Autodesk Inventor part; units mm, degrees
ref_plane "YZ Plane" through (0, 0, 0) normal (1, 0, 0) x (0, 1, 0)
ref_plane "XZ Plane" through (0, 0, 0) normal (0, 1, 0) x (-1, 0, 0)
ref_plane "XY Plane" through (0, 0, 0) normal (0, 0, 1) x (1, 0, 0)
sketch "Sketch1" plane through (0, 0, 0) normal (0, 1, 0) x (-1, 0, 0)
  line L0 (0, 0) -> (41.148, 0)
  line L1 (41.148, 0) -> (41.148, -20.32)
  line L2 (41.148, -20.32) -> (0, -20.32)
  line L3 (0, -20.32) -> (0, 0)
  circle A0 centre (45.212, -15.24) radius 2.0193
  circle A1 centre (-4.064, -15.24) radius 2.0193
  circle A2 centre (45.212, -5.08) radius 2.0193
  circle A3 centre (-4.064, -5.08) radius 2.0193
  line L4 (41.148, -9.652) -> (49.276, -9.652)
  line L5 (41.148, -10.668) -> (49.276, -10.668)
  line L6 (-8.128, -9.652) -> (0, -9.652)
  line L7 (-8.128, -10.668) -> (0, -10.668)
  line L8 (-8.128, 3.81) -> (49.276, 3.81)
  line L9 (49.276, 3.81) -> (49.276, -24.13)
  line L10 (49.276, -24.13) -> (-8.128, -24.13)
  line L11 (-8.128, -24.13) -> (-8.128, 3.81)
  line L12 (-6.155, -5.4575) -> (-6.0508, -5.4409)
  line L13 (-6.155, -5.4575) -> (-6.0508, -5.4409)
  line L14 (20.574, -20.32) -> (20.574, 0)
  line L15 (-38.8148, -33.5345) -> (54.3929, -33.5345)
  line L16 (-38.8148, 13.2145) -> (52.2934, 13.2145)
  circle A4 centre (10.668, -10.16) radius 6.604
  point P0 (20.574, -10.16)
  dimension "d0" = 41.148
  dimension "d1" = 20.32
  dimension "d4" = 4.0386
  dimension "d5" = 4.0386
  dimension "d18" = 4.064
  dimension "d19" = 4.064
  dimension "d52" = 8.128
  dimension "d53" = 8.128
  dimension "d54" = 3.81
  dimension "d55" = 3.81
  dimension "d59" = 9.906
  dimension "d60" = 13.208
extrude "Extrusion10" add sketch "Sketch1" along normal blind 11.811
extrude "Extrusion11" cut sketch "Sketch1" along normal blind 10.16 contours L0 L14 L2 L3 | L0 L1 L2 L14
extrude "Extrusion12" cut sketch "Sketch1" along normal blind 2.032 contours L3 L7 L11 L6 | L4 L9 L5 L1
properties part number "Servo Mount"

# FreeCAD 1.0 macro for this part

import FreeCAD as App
import Part
import Sketcher
from FreeCAD import Vector
Q = App.Units.Quantity

doc = App.newDocument("Part")
body = doc.addObject("PartDesign::Body", "Body")

sketch1 = body.newObject("Sketcher::SketchObject", "Sketch")
sketch1.AttachmentSupport = (doc.getObject("XZ_Plane"), [""])
sketch1.MapMode = "FlatFace"
sketch1.addGeometry([
    Part.LineSegment(Vector(8.1, 3.8, 0), Vector(8.1, -24.1, 0)),
    Part.LineSegment(Vector(8.1, -24.1, 0), Vector(-49.3, -24.1, 0)),
    Part.LineSegment(Vector(-49.3, -24.1, 0), Vector(-49.3, 3.8, 0)),
    Part.LineSegment(Vector(-49.3, 3.8, 0), Vector(8.1, 3.8, 0)),
    Part.Circle(Vector(4.1, -5.1, 0), Vector(0, 0, 1), 2),
    Part.Circle(Vector(-45.2, -5.1, 0), Vector(0, 0, 1), 2),
    Part.Circle(Vector(-10.7, -10.2, 0), Vector(0, 0, 1), 6.6),
    Part.Circle(Vector(-45.2, -15.2, 0), Vector(0, 0, 1), 2),
    Part.Circle(Vector(4.1, -15.2, 0), Vector(0, 0, 1), 2),
], False)
sketch1.addConstraint([
    Sketcher.Constraint("Coincident", 0, 2, 1, 1),
    Sketcher.Constraint("Coincident", 1, 2, 2, 1),
    Sketcher.Constraint("Coincident", 2, 2, 3, 1),
    Sketcher.Constraint("Coincident", 3, 2, 0, 1),
    Sketcher.Constraint("Vertical", 0),
    Sketcher.Constraint("Horizontal", 1),
    Sketcher.Constraint("Vertical", 2),
    Sketcher.Constraint("Horizontal", 3),
    Sketcher.Constraint("Equal", 4, 5),
    Sketcher.Constraint("Equal", 5, 7),
    Sketcher.Constraint("Equal", 7, 8),
    Sketcher.Constraint("Horizontal", 4, 3, 5, 3),
    Sketcher.Constraint("Horizontal", 7, 3, 8, 3),
    Sketcher.Constraint("Vertical", 5, 3, 7, 3),
    Sketcher.Constraint("Vertical", 4, 3, 8, 3),
    Sketcher.Constraint("Diameter", 6, Q("0.52 in")),
    Sketcher.Constraint("Diameter", 4, Q("0.159 in")),
    Sketcher.Constraint("DistanceX", -1, 1, 4, 3, Q("0.16 in")),
    Sketcher.Constraint("DistanceX", -1, 1, 0, 2, Q("0.32 in")),
    Sketcher.Constraint("DistanceY", -1, 1, 2, 2, Q("0.15 in")),
    Sketcher.Constraint("DistanceX", 1, 2, 7, 3, Q("0.16 in")),
    Sketcher.Constraint("DistanceY", 0, 2, 0, 1, Q("1.1 in")),
    Sketcher.Constraint("DistanceX", 1, 2, 1, 1, Q("2.26 in")),
    Sketcher.Constraint("DistanceY", 4, 3, -1, 1, Q("0.2 in")),
    Sketcher.Constraint("DistanceY", 6, 3, -1, 1, Q("0.4 in")),
    Sketcher.Constraint("DistanceY", 7, 3, -1, 1, Q("0.6 in")),
    Sketcher.Constraint("DistanceX", 6, 3, -1, 1, Q("0.42 in")),
])
pad1 = body.newObject("PartDesign::Pad", "Pad")
pad1.Profile = sketch1
pad1.Length = Q("0.465 in")
pad1.Reversed = True

sketch2 = body.newObject("Sketcher::SketchObject", "Sketch001")
sketch2.AttachmentSupport = (doc.getObject("XZ_Plane"), [""])
sketch2.MapMode = "FlatFace"
sketch2.addGeometry([
    Part.LineSegment(Vector(0, 0, 0), Vector(0, -20, 0)),
    Part.LineSegment(Vector(0, -20, 0), Vector(-41, -20, 0)),
    Part.LineSegment(Vector(-41, -20, 0), Vector(-41, 0, 0)),
    Part.LineSegment(Vector(-41, 0, 0), Vector(0, 0, 0)),
    Part.Circle(Vector(-11, -10, 0), Vector(0, 0, 1), 7),
], False)
sketch2.addConstraint([
    Sketcher.Constraint("Coincident", 0, 2, 1, 1),
    Sketcher.Constraint("Coincident", 1, 2, 2, 1),
    Sketcher.Constraint("Coincident", 2, 2, 3, 1),
    Sketcher.Constraint("Coincident", 3, 2, 0, 1),
    Sketcher.Constraint("Vertical", 0),
    Sketcher.Constraint("Horizontal", 1),
    Sketcher.Constraint("Vertical", 2),
    Sketcher.Constraint("Horizontal", 3),
    Sketcher.Constraint("Coincident", 3, 2, -1, 1),
    Sketcher.Constraint("Diameter", 4, Q("0.52 in")),
    Sketcher.Constraint("DistanceY", 0, 2, 0, 1, Q("0.8 in")),
    Sketcher.Constraint("DistanceX", 1, 2, 1, 1, Q("1.62 in")),
    Sketcher.Constraint("DistanceY", 4, 3, -1, 1, Q("0.4 in")),
    Sketcher.Constraint("DistanceX", 1, 2, 4, 3, Q("1.2 in")),
])
pocket1 = body.newObject("PartDesign::Pocket", "Pocket")
pocket1.Profile = sketch2
pocket1.Length = Q("0.4 in")

sketch3 = body.newObject("Sketcher::SketchObject", "Sketch002")
sketch3.AttachmentSupport = (doc.getObject("XZ_Plane"), [""])
sketch3.MapMode = "FlatFace"
sketch3.addGeometry([
    Part.LineSegment(Vector(0, -10.7, 0), Vector(0, -9.7, 0)),
    Part.LineSegment(Vector(0, -9.7, 0), Vector(8.1, -9.7, 0)),
    Part.LineSegment(Vector(8.1, -9.7, 0), Vector(8.1, -10.7, 0)),
    Part.LineSegment(Vector(8.1, -10.7, 0), Vector(0, -10.7, 0)),
    Part.LineSegment(Vector(-49.3, -9.7, 0), Vector(-41.1, -9.7, 0)),
    Part.LineSegment(Vector(-41.1, -9.7, 0), Vector(-41.1, -10.7, 0)),
    Part.LineSegment(Vector(-41.1, -10.7, 0), Vector(-49.3, -10.7, 0)),
    Part.LineSegment(Vector(-49.3, -10.7, 0), Vector(-49.3, -9.7, 0)),
], False)
sketch3.addConstraint([
    Sketcher.Constraint("Coincident", 0, 2, 1, 1),
    Sketcher.Constraint("Coincident", 1, 2, 2, 1),
    Sketcher.Constraint("Coincident", 2, 2, 3, 1),
    Sketcher.Constraint("Coincident", 3, 2, 0, 1),
    Sketcher.Constraint("Coincident", 4, 2, 5, 1),
    Sketcher.Constraint("Coincident", 5, 2, 6, 1),
    Sketcher.Constraint("Coincident", 6, 2, 7, 1),
    Sketcher.Constraint("Coincident", 7, 2, 4, 1),
    Sketcher.Constraint("Vertical", 0),
    Sketcher.Constraint("Horizontal", 1),
    Sketcher.Constraint("Vertical", 2),
    Sketcher.Constraint("Horizontal", 3),
    Sketcher.Constraint("Horizontal", 4),
    Sketcher.Constraint("Vertical", 5),
    Sketcher.Constraint("Horizontal", 6),
    Sketcher.Constraint("Vertical", 7),
    Sketcher.Constraint("PointOnObject", 0, 2, -2),
    Sketcher.Constraint("Horizontal", 1, 2, 4, 2),
    Sketcher.Constraint("Horizontal", 3, 2, 5, 2),
    Sketcher.Constraint("Equal", 3, 4),
    Sketcher.Constraint("DistanceX", 1, 1, 1, 2, Q("0.32 in")),
    Sketcher.Constraint("DistanceX", 4, 2, -1, 1, Q("1.62 in")),
    Sketcher.Constraint("DistanceY", 0, 1, 0, 2, Q("0.04 in")),
    Sketcher.Constraint("DistanceY", 0, 2, -1, 1, Q("0.38 in")),
])
pocket2 = body.newObject("PartDesign::Pocket", "Pocket001")
pocket2.Profile = sketch3
pocket2.Length = Q("0.08 in")

doc.recompute()
